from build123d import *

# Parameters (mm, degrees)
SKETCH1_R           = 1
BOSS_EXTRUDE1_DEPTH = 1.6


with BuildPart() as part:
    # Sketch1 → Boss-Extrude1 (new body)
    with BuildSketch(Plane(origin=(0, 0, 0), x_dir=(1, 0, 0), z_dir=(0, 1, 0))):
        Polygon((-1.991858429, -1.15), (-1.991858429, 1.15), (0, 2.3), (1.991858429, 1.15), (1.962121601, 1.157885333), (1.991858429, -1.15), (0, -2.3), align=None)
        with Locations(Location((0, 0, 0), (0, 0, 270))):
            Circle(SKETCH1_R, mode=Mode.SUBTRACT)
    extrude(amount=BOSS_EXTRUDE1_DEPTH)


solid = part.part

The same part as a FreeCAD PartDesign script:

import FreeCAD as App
import Part
import Sketcher
from FreeCAD import Vector
Q = App.Units.Quantity

doc = App.newDocument("Part")
body = doc.addObject("PartDesign::Body", "Body")

# Sketch on XZ plane
sketch1 = body.newObject("Sketcher::SketchObject", "Sketch")
sketch1.AttachmentSupport = (doc.getObject("XZ_Plane"), [""])
sketch1.MapMode = "FlatFace"
sketch1.addGeometry([
    Part.LineSegment(Vector(-1.992, -1.15, 0), Vector(-1.992, 1.15, 0)),  # 0
    Part.LineSegment(Vector(-1.992, 1.15, 0), Vector(0, 2.3, 0)),  # 1
    Part.LineSegment(Vector(0, 2.3, 0), Vector(1.992, 1.15, 0)),  # 2
    Part.LineSegment(Vector(1.992, 1.15, 0), Vector(1.962, -1.158, 0)),  # 3
    Part.LineSegment(Vector(1.962, -1.158, 0), Vector(1.992, -1.15, 0)),  # 4
    Part.LineSegment(Vector(1.992, -1.15, 0), Vector(0, -2.3, 0)),  # 5
    Part.LineSegment(Vector(0, -2.3, 0), Vector(-1.992, -1.15, 0)),  # 6
    Part.Circle(Vector(0, 0, 0), Vector(0, 0, 1), 1),  # 7
], False)
sketch1.addConstraint([
    Sketcher.Constraint("Coincident", 0, 2, 1, 1),
    Sketcher.Constraint("Coincident", 1, 2, 2, 1),
    Sketcher.Constraint("Coincident", 2, 2, 3, 1),
    Sketcher.Constraint("Coincident", 3, 2, 4, 1),
    Sketcher.Constraint("Coincident", 4, 2, 5, 1),
    Sketcher.Constraint("Coincident", 5, 2, 6, 1),
    Sketcher.Constraint("Coincident", 6, 2, 0, 1),
    Sketcher.Constraint("Vertical", 0),
    Sketcher.Constraint("Coincident", 7, 3, -1, 1),
    Sketcher.Constraint("Symmetric", 0, 2, 4, 2, -1, 1),
    Sketcher.Constraint("Symmetric", 1, 2, 5, 2, -1, 1),
    Sketcher.Constraint("Symmetric", 2, 2, 6, 2, -1, 1),
    Sketcher.Constraint("PointOnObject", 1, 2, -2),
    Sketcher.Constraint("Horizontal", 0, 2, 2, 2),
    Sketcher.Constraint("Diameter", 7, Q("2 mm")),
    Sketcher.Constraint("Angle", 1, Q("30 deg")),
    Sketcher.Constraint("DistanceY", 0, 1, 0, 2, Q("2.3 mm")),
    Sketcher.Constraint("Distance", 1, Q("2.3 mm")),
    Sketcher.Constraint("DistanceX", -1, 1, 3, 2, Q("1.962122 mm")),
    Sketcher.Constraint("Distance", 3, Q("2.308077 mm")),
])
pad1 = body.newObject("PartDesign::Pad", "Pad")
pad1.Profile = sketch1
pad1.Length = 1.6
pad1.Reversed = True

doc.recompute()
